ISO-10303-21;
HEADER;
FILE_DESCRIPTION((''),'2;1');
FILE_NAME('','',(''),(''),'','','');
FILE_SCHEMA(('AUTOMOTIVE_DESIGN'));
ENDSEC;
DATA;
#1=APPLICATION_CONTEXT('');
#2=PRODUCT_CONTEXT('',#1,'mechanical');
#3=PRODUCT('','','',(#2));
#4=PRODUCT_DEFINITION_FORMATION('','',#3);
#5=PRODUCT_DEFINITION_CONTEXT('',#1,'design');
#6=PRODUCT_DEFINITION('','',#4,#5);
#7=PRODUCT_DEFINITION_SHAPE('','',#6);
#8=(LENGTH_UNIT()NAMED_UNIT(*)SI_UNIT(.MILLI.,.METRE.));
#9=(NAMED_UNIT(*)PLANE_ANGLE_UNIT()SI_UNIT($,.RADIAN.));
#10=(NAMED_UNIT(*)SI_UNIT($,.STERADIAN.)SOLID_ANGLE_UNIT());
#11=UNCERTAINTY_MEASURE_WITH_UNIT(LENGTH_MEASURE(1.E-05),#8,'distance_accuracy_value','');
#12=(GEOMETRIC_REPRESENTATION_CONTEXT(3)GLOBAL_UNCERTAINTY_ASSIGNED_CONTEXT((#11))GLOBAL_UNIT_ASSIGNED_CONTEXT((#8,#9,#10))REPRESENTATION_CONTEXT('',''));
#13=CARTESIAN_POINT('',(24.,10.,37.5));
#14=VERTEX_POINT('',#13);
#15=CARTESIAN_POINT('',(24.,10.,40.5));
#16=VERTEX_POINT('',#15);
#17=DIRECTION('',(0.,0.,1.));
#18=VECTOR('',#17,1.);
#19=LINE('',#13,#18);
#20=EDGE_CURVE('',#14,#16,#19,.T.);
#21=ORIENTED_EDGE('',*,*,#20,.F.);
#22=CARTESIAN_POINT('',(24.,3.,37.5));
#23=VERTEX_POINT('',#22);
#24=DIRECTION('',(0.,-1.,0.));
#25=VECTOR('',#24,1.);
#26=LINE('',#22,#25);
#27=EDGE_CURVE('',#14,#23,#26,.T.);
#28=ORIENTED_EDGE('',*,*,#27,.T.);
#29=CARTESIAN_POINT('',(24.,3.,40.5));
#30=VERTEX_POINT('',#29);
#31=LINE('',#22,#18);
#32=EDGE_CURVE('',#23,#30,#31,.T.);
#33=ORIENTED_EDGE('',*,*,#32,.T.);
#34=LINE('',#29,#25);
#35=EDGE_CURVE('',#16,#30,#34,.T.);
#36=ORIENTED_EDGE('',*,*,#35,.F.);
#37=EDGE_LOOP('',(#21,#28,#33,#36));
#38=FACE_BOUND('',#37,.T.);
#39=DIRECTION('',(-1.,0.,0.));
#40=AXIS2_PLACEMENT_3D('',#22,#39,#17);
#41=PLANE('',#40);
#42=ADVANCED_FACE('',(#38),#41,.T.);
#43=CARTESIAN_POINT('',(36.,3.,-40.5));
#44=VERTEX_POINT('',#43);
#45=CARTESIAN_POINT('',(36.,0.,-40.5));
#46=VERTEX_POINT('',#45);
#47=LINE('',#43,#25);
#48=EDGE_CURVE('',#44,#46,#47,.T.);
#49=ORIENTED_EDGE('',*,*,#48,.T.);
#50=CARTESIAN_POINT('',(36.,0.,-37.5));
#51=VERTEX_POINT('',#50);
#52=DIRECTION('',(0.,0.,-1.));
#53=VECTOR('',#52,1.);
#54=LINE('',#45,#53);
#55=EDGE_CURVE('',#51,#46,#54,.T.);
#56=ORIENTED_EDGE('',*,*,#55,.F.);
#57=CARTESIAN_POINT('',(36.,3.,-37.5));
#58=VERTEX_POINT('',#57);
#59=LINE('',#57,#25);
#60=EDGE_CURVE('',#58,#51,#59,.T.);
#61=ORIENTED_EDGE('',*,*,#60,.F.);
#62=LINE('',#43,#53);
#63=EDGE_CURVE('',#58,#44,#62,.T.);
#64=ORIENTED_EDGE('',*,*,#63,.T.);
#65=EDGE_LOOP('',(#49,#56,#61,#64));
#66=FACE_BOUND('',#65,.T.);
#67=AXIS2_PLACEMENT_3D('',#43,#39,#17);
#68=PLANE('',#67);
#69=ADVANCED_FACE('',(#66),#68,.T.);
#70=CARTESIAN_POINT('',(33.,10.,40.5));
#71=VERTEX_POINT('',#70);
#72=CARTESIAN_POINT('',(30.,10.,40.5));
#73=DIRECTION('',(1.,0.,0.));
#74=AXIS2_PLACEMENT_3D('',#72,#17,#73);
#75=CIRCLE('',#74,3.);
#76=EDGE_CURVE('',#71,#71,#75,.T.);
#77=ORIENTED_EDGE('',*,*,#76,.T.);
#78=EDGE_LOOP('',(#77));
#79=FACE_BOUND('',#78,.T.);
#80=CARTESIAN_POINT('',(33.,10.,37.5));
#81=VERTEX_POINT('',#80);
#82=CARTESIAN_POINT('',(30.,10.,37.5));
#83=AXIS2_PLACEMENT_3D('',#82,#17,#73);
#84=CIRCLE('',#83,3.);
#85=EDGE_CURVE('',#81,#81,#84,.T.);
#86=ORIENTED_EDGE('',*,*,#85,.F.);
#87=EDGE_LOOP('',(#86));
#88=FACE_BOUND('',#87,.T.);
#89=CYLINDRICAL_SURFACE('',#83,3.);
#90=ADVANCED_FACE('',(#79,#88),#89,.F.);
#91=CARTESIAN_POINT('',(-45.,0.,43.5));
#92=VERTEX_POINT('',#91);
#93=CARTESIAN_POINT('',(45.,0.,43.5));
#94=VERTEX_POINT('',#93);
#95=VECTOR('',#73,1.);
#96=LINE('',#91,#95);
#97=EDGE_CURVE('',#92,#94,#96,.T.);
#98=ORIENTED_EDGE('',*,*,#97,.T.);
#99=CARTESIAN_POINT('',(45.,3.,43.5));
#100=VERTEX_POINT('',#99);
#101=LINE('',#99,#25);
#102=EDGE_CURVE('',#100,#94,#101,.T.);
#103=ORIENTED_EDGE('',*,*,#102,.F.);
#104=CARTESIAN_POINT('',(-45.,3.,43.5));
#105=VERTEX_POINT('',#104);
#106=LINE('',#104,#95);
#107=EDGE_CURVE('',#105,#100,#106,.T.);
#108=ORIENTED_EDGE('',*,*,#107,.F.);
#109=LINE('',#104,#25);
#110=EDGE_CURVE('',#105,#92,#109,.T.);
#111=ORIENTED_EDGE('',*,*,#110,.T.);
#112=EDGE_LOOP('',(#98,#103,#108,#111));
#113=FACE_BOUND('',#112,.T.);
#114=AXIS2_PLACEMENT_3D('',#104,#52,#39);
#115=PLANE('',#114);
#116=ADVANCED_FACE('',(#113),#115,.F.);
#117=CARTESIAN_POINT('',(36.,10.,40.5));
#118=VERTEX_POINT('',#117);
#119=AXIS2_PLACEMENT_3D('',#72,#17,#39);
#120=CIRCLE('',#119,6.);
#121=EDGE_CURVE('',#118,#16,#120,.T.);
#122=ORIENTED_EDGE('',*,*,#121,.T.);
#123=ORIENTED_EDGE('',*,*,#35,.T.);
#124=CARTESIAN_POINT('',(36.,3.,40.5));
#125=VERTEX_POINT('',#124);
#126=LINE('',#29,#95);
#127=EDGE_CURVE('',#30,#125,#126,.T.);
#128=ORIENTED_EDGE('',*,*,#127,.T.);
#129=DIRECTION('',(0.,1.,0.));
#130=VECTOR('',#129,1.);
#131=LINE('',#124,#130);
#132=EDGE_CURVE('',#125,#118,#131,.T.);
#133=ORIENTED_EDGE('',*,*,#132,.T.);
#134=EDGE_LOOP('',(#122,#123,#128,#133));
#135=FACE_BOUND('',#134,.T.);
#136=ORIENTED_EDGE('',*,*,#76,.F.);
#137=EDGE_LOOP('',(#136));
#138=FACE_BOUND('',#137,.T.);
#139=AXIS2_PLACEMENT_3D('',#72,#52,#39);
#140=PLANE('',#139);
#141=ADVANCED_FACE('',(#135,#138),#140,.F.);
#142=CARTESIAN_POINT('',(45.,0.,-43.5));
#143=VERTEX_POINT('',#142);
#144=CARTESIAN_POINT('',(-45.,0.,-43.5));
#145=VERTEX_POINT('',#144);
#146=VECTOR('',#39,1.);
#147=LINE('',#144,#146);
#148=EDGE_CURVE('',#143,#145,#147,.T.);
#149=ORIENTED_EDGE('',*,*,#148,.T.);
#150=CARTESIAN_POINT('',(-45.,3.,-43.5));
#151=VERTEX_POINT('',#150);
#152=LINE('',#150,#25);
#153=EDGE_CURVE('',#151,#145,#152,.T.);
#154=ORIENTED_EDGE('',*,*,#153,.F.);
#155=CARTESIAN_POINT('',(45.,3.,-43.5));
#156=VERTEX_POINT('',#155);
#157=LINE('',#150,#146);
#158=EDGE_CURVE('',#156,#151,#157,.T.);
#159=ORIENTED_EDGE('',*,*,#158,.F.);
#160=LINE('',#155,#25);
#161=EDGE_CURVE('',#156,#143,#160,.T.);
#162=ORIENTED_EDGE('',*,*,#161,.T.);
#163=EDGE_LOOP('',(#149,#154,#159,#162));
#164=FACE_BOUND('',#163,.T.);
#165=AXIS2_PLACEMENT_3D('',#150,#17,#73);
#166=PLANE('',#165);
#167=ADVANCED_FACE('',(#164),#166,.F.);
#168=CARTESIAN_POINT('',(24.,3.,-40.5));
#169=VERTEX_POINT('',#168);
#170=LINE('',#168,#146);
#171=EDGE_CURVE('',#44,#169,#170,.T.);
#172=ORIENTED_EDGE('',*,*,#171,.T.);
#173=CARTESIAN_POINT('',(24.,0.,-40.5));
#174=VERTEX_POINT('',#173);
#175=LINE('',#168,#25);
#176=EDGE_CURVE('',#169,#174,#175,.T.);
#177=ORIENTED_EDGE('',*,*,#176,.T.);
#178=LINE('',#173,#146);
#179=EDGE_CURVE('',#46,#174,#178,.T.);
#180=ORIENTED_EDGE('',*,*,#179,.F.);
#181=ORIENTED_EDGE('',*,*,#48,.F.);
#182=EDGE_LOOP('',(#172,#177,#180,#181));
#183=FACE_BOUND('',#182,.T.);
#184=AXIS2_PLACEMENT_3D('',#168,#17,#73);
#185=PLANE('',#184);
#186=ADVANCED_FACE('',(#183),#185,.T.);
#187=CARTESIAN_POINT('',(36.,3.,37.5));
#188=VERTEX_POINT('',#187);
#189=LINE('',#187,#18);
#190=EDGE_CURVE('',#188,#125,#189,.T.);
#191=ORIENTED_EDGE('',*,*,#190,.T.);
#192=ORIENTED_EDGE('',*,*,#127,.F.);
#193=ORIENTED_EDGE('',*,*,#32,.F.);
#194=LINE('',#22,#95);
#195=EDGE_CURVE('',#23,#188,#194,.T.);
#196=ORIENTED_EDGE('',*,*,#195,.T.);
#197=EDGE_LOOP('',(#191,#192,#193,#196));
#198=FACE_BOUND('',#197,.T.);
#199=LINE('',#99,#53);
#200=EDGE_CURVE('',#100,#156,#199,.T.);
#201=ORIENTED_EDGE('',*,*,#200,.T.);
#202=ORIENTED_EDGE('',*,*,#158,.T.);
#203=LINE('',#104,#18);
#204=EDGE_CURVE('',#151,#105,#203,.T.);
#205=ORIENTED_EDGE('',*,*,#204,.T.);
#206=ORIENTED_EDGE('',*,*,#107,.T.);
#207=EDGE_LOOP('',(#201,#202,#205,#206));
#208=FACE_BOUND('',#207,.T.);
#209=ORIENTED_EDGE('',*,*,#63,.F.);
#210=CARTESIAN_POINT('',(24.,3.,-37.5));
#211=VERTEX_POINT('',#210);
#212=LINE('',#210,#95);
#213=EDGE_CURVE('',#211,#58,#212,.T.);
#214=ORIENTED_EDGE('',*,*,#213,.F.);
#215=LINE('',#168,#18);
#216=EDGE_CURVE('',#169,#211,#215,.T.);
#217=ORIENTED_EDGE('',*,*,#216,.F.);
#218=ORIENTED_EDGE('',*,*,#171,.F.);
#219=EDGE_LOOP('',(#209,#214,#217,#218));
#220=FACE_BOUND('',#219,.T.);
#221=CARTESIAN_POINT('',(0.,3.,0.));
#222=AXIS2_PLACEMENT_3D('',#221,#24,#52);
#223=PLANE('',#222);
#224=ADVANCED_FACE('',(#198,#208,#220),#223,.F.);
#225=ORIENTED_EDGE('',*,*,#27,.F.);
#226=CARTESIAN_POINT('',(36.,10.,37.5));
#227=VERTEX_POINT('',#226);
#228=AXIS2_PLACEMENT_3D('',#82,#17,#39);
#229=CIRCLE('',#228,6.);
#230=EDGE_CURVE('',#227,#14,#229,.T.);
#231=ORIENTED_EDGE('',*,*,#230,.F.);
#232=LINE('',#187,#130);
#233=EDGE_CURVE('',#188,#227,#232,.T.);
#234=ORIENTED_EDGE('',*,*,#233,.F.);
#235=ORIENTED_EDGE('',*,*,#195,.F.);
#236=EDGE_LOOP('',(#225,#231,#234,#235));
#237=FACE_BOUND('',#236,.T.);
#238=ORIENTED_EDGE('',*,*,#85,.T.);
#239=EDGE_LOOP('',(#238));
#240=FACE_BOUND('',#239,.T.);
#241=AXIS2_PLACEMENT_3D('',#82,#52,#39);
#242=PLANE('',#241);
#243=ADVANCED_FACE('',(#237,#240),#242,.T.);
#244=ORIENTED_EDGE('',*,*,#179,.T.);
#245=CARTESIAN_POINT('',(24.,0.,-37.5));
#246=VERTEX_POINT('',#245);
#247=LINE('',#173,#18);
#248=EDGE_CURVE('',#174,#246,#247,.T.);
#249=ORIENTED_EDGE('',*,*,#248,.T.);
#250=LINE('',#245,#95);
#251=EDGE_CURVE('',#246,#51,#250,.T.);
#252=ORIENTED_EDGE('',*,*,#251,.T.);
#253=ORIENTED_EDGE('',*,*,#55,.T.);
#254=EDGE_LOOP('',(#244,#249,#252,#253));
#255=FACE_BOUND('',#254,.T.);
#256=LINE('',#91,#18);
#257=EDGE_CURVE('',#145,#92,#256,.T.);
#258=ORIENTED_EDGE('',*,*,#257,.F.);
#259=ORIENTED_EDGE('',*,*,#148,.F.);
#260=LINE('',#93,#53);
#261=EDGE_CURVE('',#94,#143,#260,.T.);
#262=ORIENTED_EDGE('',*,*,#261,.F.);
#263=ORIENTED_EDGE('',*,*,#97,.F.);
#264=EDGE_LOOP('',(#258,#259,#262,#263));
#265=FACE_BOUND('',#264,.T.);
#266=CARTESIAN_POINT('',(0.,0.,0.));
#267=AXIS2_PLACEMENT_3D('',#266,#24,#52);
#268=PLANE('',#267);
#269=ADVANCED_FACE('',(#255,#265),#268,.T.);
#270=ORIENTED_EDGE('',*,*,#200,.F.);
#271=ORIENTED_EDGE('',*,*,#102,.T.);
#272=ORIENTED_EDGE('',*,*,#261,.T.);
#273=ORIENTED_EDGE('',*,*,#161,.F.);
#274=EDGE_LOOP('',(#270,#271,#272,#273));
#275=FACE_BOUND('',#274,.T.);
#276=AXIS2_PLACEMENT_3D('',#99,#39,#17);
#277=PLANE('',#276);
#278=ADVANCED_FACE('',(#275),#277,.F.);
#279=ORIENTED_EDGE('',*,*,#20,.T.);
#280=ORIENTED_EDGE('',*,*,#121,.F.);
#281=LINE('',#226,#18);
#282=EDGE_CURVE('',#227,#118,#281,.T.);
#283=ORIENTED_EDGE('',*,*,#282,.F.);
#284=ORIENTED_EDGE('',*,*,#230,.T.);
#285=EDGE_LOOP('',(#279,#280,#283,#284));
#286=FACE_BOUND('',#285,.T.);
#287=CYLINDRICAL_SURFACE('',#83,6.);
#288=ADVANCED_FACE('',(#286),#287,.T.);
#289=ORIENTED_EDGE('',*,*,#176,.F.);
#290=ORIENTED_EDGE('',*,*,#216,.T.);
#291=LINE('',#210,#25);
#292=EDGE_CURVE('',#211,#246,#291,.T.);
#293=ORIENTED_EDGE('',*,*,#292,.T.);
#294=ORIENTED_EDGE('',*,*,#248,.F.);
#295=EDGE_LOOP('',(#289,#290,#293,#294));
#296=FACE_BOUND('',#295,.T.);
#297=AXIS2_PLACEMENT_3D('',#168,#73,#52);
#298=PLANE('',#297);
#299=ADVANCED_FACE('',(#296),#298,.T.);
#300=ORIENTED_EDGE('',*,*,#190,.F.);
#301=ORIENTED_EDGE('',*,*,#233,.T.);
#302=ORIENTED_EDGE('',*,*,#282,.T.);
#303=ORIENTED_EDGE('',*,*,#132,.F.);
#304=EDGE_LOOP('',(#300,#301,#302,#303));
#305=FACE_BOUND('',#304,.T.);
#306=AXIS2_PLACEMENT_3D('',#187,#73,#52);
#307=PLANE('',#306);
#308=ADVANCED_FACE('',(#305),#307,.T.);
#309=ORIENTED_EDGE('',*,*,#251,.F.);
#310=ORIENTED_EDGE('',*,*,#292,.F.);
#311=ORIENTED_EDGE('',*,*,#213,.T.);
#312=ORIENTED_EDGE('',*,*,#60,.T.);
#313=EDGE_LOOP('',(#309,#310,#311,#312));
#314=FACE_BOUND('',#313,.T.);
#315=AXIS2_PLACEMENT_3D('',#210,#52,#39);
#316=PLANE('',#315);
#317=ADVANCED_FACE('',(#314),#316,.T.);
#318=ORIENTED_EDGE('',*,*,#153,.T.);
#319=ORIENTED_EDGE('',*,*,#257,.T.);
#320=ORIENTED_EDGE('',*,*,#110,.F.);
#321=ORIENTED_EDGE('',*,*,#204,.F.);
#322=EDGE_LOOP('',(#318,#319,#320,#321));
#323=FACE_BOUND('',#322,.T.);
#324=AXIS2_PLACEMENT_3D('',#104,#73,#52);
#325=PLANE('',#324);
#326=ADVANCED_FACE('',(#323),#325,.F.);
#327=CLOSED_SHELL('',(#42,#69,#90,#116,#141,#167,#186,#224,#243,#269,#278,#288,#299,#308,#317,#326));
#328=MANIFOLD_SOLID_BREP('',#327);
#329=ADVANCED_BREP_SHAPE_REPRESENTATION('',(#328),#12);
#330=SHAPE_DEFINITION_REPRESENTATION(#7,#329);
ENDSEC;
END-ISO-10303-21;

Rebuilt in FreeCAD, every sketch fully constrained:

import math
import FreeCAD as App
import Part
import Sketcher
from FreeCAD import Vector
Q = App.Units.Quantity


def add_polygon(sketch, points):
    """Adds a closed chain of lines whose ends are joined by coincident constraints."""
    first, n = sketch.GeometryCount, len(points)
    for a, b in zip(points, points[1:] + points[:1]):
        sketch.addGeometry(Part.LineSegment(App.Vector(*a, 0), App.Vector(*b, 0)), False)
    for i in range(n):
        sketch.addConstraint(Sketcher.Constraint("Coincident", first + i, 2, first + (i + 1) % n, 1))

doc = App.newDocument("Part")
body = doc.addObject("PartDesign::Body", "Body")

sketch1 = body.newObject("Sketcher::SketchObject", "Sketch")
sketch1.AttachmentSupport = (doc.getObject("XZ_Plane"), [""])
sketch1.MapMode = "FlatFace"
add_polygon(sketch1, [(-45, -43.5), (-45, 43.5), (45, 43.5), (45, -43.5)])
add_polygon(sketch1, [(36, -37.5), (24, -37.5), (24, -40.5), (36, -40.5)])
sketch1.addConstraint([
    Sketcher.Constraint("Vertical", 0),
    Sketcher.Constraint("Horizontal", 1),
    Sketcher.Constraint("Vertical", 2),
    Sketcher.Constraint("Horizontal", 3),
    Sketcher.Constraint("Horizontal", 4),
    Sketcher.Constraint("Vertical", 5),
    Sketcher.Constraint("Horizontal", 6),
    Sketcher.Constraint("Vertical", 7),
    Sketcher.Constraint("Symmetric", 0, 2, 2, 2, -1, 1),
    Sketcher.Constraint("DistanceX", 1, 1, 1, 2, Q("90 mm")),
    Sketcher.Constraint("DistanceX", 4, 2, 4, 1, Q("12 mm")),
    Sketcher.Constraint("DistanceY", 0, 1, 0, 2, Q("87 mm")),
    Sketcher.Constraint("DistanceY", 5, 2, 5, 1, Q("3 mm")),
    Sketcher.Constraint("DistanceX", -1, 1, 4, 2, Q("24 mm")),
    Sketcher.Constraint("DistanceY", 2, 2, 4, 2, Q("6 mm")),
])
pad1 = body.newObject("PartDesign::Pad", "Pad")
pad1.Profile = sketch1
pad1.Length = 3
pad1.Reversed = True

sketch2 = body.newObject("Sketcher::SketchObject", "Sketch001")
sketch2.AttachmentSupport = (doc.getObject("XY_Plane"), [""])
sketch2.MapMode = "FlatFace"
sketch2.AttachmentOffset = App.Placement(Vector(0, 0, 40.5), App.Rotation())
sketch2.addGeometry([
    Part.LineSegment(Vector(24, 10, 0), Vector(24, 3, 0)),
    Part.LineSegment(Vector(24, 3, 0), Vector(36, 3, 0)),
    Part.LineSegment(Vector(36, 3, 0), Vector(36, 10, 0)),
    Part.ArcOfCircle(Part.Circle(Vector(30, 10, 0), Vector(0, 0, 1), 6), math.radians(0), math.radians(180)),
    Part.Circle(Vector(30, 10, 0), Vector(0, 0, 1), 3),
], False)
sketch2.addConstraint([
    Sketcher.Constraint("Coincident", 0, 2, 1, 1),
    Sketcher.Constraint("Coincident", 1, 2, 2, 1),
    Sketcher.Constraint("Tangent", 2, 2, 3, 1),
    Sketcher.Constraint("Tangent", 3, 2, 0, 1),
    Sketcher.Constraint("Vertical", 0),
    Sketcher.Constraint("Horizontal", 1),
    Sketcher.Constraint("Vertical", 2),
    Sketcher.Constraint("Coincident", 4, 3, 3, 3),
    Sketcher.Constraint("Diameter", 4, Q("6 mm")),
    Sketcher.Constraint("Radius", 3, Q("6 mm")),
    Sketcher.Constraint("DistanceY", 0, 2, 0, 1, Q("7 mm")),
    Sketcher.Constraint("DistanceX", -1, 1, 3, 3, Q("30 mm")),
    Sketcher.Constraint("DistanceY", -1, 1, 3, 3, Q("10 mm")),
])
pad2 = body.newObject("PartDesign::Pad", "Pad001")
pad2.Profile = sketch2
pad2.Length = 3
pad2.Reversed = True

doc.recompute()
